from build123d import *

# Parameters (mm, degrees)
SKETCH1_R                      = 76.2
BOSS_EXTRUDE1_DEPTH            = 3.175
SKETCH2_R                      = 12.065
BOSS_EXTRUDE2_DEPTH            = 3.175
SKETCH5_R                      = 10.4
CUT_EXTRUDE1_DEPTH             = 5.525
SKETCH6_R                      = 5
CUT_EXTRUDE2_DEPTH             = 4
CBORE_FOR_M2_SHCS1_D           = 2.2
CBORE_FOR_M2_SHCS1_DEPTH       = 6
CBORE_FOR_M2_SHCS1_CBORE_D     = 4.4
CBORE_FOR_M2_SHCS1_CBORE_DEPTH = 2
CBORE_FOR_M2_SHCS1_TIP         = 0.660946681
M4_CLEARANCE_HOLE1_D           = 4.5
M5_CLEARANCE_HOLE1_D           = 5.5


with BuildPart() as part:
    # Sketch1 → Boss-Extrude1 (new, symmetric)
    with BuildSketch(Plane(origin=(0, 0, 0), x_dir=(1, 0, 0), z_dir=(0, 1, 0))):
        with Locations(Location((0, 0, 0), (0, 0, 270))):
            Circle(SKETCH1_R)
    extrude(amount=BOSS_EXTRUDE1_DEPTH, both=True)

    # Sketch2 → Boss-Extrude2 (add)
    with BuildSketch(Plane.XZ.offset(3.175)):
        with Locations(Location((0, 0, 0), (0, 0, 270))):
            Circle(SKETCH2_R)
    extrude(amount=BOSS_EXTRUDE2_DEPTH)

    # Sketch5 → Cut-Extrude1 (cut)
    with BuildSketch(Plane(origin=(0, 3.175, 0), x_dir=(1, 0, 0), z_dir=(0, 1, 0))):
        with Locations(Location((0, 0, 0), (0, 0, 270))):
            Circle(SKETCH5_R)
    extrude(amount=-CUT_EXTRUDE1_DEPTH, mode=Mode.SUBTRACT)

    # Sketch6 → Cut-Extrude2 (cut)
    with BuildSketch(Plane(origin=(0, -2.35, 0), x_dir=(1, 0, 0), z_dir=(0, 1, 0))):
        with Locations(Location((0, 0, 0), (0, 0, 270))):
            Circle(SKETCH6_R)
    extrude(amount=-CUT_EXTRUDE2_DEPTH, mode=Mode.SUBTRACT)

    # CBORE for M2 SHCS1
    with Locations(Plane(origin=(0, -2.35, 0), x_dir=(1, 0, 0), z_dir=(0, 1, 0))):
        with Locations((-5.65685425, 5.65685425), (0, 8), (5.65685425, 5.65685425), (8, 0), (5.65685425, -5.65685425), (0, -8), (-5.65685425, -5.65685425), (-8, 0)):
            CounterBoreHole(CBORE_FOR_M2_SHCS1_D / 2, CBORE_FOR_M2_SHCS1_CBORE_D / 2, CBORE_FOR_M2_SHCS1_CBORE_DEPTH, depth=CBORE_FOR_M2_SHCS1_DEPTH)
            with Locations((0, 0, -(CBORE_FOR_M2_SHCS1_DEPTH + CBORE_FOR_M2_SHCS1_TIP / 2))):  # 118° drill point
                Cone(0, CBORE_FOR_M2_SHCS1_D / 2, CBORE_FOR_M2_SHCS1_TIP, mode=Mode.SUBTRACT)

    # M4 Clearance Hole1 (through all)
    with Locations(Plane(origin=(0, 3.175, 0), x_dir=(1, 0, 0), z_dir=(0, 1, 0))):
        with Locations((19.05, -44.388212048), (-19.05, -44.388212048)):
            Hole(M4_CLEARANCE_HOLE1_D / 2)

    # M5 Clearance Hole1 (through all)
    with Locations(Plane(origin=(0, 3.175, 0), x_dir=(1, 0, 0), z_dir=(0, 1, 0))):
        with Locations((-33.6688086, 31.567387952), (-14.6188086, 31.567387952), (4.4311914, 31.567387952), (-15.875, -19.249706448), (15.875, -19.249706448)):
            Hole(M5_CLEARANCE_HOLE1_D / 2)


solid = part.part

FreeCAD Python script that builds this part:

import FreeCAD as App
import Part
import Sketcher
from FreeCAD import Vector
Q = App.Units.Quantity

doc = App.newDocument("Part")
params = doc.addObject("Spreadsheet::Sheet", "Params")
for row, (alias, value) in enumerate([
    ("sketch1_diameter", "152.4 mm"),
    ("pad1_length", "6.35 mm"),
    ("sketch2_diameter", "24.13 mm"),
    ("pad2_length", "3.175 mm"),
    ("sketch3_diameter", "20.8 mm"),
    ("pocket1_length", "5.525 mm"),
    ("sketch4_diameter", "10 mm"),
    ("pocket2_length", "4 mm"),
    ("sketch5_diameter", "2.2 mm"),
    ("hole_diameter", "2.2 mm"),
    ("hole_depth", "6 mm"),
    ("hole_cbore_diameter", "4.4 mm"),
    ("hole_cbore_depth", "2 mm"),
    ("sketch6_diameter", "4.5 mm"),
    ("hole2_diameter", "4.5 mm"),
    ("sketch7_diameter", "5.5 mm"),
    ("hole3_diameter", "5.5 mm"),
], start=1):
    params.set(f"A{row}", alias)
    params.set(f"B{row}", "=" + value)
    params.setAlias(f"B{row}", alias)

body = doc.addObject("PartDesign::Body", "Body")

# Sketch on XZ plane
sketch1 = body.newObject("Sketcher::SketchObject", "Sketch")
sketch1.AttachmentSupport = (doc.getObject("XZ_Plane"), [""])
sketch1.MapMode = "FlatFace"
sketch1.addGeometry(Part.Circle(Vector(0, 0, 0), Vector(0, 0, 1), 76), False)
sketch1.addConstraint(Sketcher.Constraint("Coincident", 0, 3, -1, 1))
sketch1.addConstraint(Sketcher.Constraint("Diameter", 0, Q("152.4 mm")))
sketch1.setExpression("Constraints[1]", "Params.sketch1_diameter")
pad1 = body.newObject("PartDesign::Pad", "Pad")
pad1.Profile = sketch1
pad1.setExpression("Length", "Params.pad1_length")
pad1.Midplane = True

# Sketch on XZ plane
sketch2 = body.newObject("Sketcher::SketchObject", "Sketch001")
sketch2.AttachmentSupport = (doc.getObject("XZ_Plane"), [""])
sketch2.MapMode = "FlatFace"
sketch2.AttachmentOffset = App.Placement(Vector(0, 0, 3.175), App.Rotation())
sketch2.addGeometry(Part.Circle(Vector(0, 0, 0), Vector(0, 0, 1), 12), False)
sketch2.addConstraint(Sketcher.Constraint("Coincident", 0, 3, -1, 1))
sketch2.addConstraint(Sketcher.Constraint("Diameter", 0, Q("24.13 mm")))
sketch2.setExpression("Constraints[1]", "Params.sketch2_diameter")
pad2 = body.newObject("PartDesign::Pad", "Pad001")
pad2.Profile = sketch2
pad2.setExpression("Length", "Params.pad2_length")

# Sketch on XZ plane
sketch3 = body.newObject("Sketcher::SketchObject", "Sketch002")
sketch3.AttachmentSupport = (doc.getObject("XZ_Plane"), [""])
sketch3.MapMode = "FlatFace"
sketch3.AttachmentOffset = App.Placement(Vector(0, 0, -3.175), App.Rotation())
sketch3.addGeometry(Part.Circle(Vector(0, 0, 0), Vector(0, 0, 1), 10), False)
sketch3.addConstraint(Sketcher.Constraint("Coincident", 0, 3, -1, 1))
sketch3.addConstraint(Sketcher.Constraint("Diameter", 0, Q("20.8 mm")))
sketch3.setExpression("Constraints[1]", "Params.sketch3_diameter")
pocket1 = body.newObject("PartDesign::Pocket", "Pocket")
pocket1.Profile = sketch3
pocket1.setExpression("Length", "Params.pocket1_length")
pocket1.Reversed = True

# Sketch on XZ plane
sketch4 = body.newObject("Sketcher::SketchObject", "Sketch003")
sketch4.AttachmentSupport = (doc.getObject("XZ_Plane"), [""])
sketch4.MapMode = "FlatFace"
sketch4.AttachmentOffset = App.Placement(Vector(0, 0, 2.35), App.Rotation())
sketch4.addGeometry(Part.Circle(Vector(0, 0, 0), Vector(0, 0, 1), 5), False)
sketch4.addConstraint(Sketcher.Constraint("Coincident", 0, 3, -1, 1))
sketch4.addConstraint(Sketcher.Constraint("Diameter", 0, Q("10 mm")))
sketch4.setExpression("Constraints[1]", "Params.sketch4_diameter")
pocket2 = body.newObject("PartDesign::Pocket", "Pocket001")
pocket2.Profile = sketch4
pocket2.setExpression("Length", "Params.pocket2_length")
pocket2.Reversed = True

# Sketch on XZ plane
sketch5 = body.newObject("Sketcher::SketchObject", "Sketch004")
sketch5.AttachmentSupport = (doc.getObject("XZ_Plane"), [""])
sketch5.MapMode = "FlatFace"
sketch5.AttachmentOffset = App.Placement(Vector(0, 0, 2.35), App.Rotation())
sketch5.addGeometry(Part.Circle(Vector(-5.7, -5.7, 0), Vector(0, 0, 1), 1.1), False)
sketch5.addGeometry(Part.Circle(Vector(0, -8, 0), Vector(0, 0, 1), 1.1), False)
sketch5.addGeometry(Part.Circle(Vector(5.7, -5.7, 0), Vector(0, 0, 1), 1.1), False)
sketch5.addGeometry(Part.Circle(Vector(8, 0, 0), Vector(0, 0, 1), 1.1), False)
sketch5.addGeometry(Part.Circle(Vector(5.7, 5.7, 0), Vector(0, 0, 1), 1.1), False)
sketch5.addGeometry(Part.Circle(Vector(0, 8, 0), Vector(0, 0, 1), 1.1), False)
sketch5.addGeometry(Part.Circle(Vector(-5.7, 5.7, 0), Vector(0, 0, 1), 1.1), False)
sketch5.addGeometry(Part.Circle(Vector(-8, 0, 0), Vector(0, 0, 1), 1.1), False)
sketch5.addConstraint(Sketcher.Constraint("Equal", 0, 1))
sketch5.addConstraint(Sketcher.Constraint("Equal", 1, 2))
sketch5.addConstraint(Sketcher.Constraint("Equal", 2, 3))
sketch5.addConstraint(Sketcher.Constraint("Equal", 3, 4))
sketch5.addConstraint(Sketcher.Constraint("Equal", 4, 5))
sketch5.addConstraint(Sketcher.Constraint("Equal", 5, 6))
sketch5.addConstraint(Sketcher.Constraint("Equal", 6, 7))
sketch5.addConstraint(Sketcher.Constraint("Symmetric", 0, 3, 4, 3, -1, 1))
sketch5.addConstraint(Sketcher.Constraint("Symmetric", 1, 3, 5, 3, -1, 1))
sketch5.addConstraint(Sketcher.Constraint("Symmetric", 2, 3, 6, 3, -1, 1))
sketch5.addConstraint(Sketcher.Constraint("Symmetric", 3, 3, 7, 3, -1, 1))
sketch5.addConstraint(Sketcher.Constraint("Symmetric", 0, 3, 2, 3, -2))
sketch5.addConstraint(Sketcher.Constraint("PointOnObject", 1, 3, -2))
sketch5.addConstraint(Sketcher.Constraint("PointOnObject", 3, 3, -1))
sketch5.addConstraint(Sketcher.Constraint("Diameter", 0, Q("2.2 mm")))
sketch5.addConstraint(Sketcher.Constraint("DistanceY", 1, 3, -1, 1, Q("8 mm")))
sketch5.addConstraint(Sketcher.Constraint("DistanceX", -1, 1, 3, 3, Q("8 mm")))
sketch5.addConstraint(Sketcher.Constraint("DistanceX", 0, 3, 2, 3, Q("11.313709 mm")))
sketch5.addConstraint(Sketcher.Constraint("DistanceY", 2, 3, 4, 3, Q("11.313709 mm")))
sketch5.setExpression("Constraints[14]", "Params.sketch5_diameter")
doc.recompute()
hole = body.newObject("PartDesign::Hole", "Hole")
hole.Profile = sketch5
hole.ThreadType = "None"
hole.setExpression("Diameter", "Params.hole_diameter")
hole.DepthType = "Dimension"
hole.setExpression("Depth", "Params.hole_depth")
hole.DrillPoint = "Angled"
hole.DrillPointAngle = 118
hole.HoleCutType = "Counterbore"
hole.setExpression("HoleCutDiameter", "Params.hole_cbore_diameter")
hole.setExpression("HoleCutDepth", "Params.hole_cbore_depth")
hole.Reversed = True

# Sketch on XZ plane
sketch6 = body.newObject("Sketcher::SketchObject", "Sketch005")
sketch6.AttachmentSupport = (doc.getObject("XZ_Plane"), [""])
sketch6.MapMode = "FlatFace"
sketch6.AttachmentOffset = App.Placement(Vector(0, 0, -3.175), App.Rotation())
sketch6.addGeometry(Part.Circle(Vector(19.1, 44.4, 0), Vector(0, 0, 1), 2.2), False)
sketch6.addGeometry(Part.Circle(Vector(-19.1, 44.4, 0), Vector(0, 0, 1), 2.2), False)
sketch6.addConstraint(Sketcher.Constraint("Equal", 0, 1))
sketch6.addConstraint(Sketcher.Constraint("Symmetric", 0, 3, 1, 3, -2))
sketch6.addConstraint(Sketcher.Constraint("Diameter", 0, Q("4.5 mm")))
sketch6.addConstraint(Sketcher.Constraint("DistanceX", 1, 3, 0, 3, Q("38.1 mm")))
sketch6.addConstraint(Sketcher.Constraint("DistanceY", -1, 1, 0, 3, Q("44.388212 mm")))
sketch6.setExpression("Constraints[2]", "Params.sketch6_diameter")
doc.recompute()
hole2 = body.newObject("PartDesign::Hole", "Hole001")
hole2.Profile = sketch6
hole2.ThreadType = "None"
hole2.setExpression("Diameter", "Params.hole2_diameter")
hole2.DepthType = "ThroughAll"
hole2.Reversed = True

# Sketch on XZ plane
sketch7 = body.newObject("Sketcher::SketchObject", "Sketch006")
sketch7.AttachmentSupport = (doc.getObject("XZ_Plane"), [""])
sketch7.MapMode = "FlatFace"
sketch7.AttachmentOffset = App.Placement(Vector(0, 0, -3.175), App.Rotation())
sketch7.addGeometry(Part.Circle(Vector(-33.7, -31.6, 0), Vector(0, 0, 1), 2.8), False)
sketch7.addGeometry(Part.Circle(Vector(-14.6, -31.6, 0), Vector(0, 0, 1), 2.8), False)
sketch7.addGeometry(Part.Circle(Vector(4.4, -31.6, 0), Vector(0, 0, 1), 2.8), False)
sketch7.addGeometry(Part.Circle(Vector(-15.9, 19.2, 0), Vector(0, 0, 1), 2.8), False)
sketch7.addGeometry(Part.Circle(Vector(15.9, 19.2, 0), Vector(0, 0, 1), 2.8), False)
sketch7.addConstraint(Sketcher.Constraint("Equal", 0, 1))
sketch7.addConstraint(Sketcher.Constraint("Equal", 1, 2))
sketch7.addConstraint(Sketcher.Constraint("Equal", 2, 3))
sketch7.addConstraint(Sketcher.Constraint("Equal", 3, 4))
sketch7.addConstraint(Sketcher.Constraint("Symmetric", 3, 3, 4, 3, -2))
sketch7.addConstraint(Sketcher.Constraint("Horizontal", 0, 3, 1, 3))
sketch7.addConstraint(Sketcher.Constraint("Horizontal", 1, 3, 2, 3))
sketch7.addConstraint(Sketcher.Constraint("Diameter", 0, Q("5.5 mm")))
sketch7.addConstraint(Sketcher.Constraint("DistanceX", 0, 3, 2, 3, Q("38.1 mm")))
sketch7.addConstraint(Sketcher.Constraint("DistanceX", 0, 3, 1, 3, Q("19.05 mm")))
sketch7.addConstraint(Sketcher.Constraint("DistanceX", 3, 3, 4, 3, Q("31.75 mm")))
sketch7.addConstraint(Sketcher.Constraint("DistanceX", 0, 3, -1, 1, Q("33.668809 mm")))
sketch7.addConstraint(Sketcher.Constraint("DistanceY", 0, 3, -1, 1, Q("31.567388 mm")))
sketch7.addConstraint(Sketcher.Constraint("DistanceY", -1, 1, 3, 3, Q("19.249706 mm")))
sketch7.setExpression("Constraints[7]", "Params.sketch7_diameter")
doc.recompute()
hole3 = body.newObject("PartDesign::Hole", "Hole002")
hole3.Profile = sketch7
hole3.ThreadType = "None"
hole3.setExpression("Diameter", "Params.hole3_diameter")
hole3.DepthType = "ThroughAll"
hole3.Reversed = True

doc.recompute()
